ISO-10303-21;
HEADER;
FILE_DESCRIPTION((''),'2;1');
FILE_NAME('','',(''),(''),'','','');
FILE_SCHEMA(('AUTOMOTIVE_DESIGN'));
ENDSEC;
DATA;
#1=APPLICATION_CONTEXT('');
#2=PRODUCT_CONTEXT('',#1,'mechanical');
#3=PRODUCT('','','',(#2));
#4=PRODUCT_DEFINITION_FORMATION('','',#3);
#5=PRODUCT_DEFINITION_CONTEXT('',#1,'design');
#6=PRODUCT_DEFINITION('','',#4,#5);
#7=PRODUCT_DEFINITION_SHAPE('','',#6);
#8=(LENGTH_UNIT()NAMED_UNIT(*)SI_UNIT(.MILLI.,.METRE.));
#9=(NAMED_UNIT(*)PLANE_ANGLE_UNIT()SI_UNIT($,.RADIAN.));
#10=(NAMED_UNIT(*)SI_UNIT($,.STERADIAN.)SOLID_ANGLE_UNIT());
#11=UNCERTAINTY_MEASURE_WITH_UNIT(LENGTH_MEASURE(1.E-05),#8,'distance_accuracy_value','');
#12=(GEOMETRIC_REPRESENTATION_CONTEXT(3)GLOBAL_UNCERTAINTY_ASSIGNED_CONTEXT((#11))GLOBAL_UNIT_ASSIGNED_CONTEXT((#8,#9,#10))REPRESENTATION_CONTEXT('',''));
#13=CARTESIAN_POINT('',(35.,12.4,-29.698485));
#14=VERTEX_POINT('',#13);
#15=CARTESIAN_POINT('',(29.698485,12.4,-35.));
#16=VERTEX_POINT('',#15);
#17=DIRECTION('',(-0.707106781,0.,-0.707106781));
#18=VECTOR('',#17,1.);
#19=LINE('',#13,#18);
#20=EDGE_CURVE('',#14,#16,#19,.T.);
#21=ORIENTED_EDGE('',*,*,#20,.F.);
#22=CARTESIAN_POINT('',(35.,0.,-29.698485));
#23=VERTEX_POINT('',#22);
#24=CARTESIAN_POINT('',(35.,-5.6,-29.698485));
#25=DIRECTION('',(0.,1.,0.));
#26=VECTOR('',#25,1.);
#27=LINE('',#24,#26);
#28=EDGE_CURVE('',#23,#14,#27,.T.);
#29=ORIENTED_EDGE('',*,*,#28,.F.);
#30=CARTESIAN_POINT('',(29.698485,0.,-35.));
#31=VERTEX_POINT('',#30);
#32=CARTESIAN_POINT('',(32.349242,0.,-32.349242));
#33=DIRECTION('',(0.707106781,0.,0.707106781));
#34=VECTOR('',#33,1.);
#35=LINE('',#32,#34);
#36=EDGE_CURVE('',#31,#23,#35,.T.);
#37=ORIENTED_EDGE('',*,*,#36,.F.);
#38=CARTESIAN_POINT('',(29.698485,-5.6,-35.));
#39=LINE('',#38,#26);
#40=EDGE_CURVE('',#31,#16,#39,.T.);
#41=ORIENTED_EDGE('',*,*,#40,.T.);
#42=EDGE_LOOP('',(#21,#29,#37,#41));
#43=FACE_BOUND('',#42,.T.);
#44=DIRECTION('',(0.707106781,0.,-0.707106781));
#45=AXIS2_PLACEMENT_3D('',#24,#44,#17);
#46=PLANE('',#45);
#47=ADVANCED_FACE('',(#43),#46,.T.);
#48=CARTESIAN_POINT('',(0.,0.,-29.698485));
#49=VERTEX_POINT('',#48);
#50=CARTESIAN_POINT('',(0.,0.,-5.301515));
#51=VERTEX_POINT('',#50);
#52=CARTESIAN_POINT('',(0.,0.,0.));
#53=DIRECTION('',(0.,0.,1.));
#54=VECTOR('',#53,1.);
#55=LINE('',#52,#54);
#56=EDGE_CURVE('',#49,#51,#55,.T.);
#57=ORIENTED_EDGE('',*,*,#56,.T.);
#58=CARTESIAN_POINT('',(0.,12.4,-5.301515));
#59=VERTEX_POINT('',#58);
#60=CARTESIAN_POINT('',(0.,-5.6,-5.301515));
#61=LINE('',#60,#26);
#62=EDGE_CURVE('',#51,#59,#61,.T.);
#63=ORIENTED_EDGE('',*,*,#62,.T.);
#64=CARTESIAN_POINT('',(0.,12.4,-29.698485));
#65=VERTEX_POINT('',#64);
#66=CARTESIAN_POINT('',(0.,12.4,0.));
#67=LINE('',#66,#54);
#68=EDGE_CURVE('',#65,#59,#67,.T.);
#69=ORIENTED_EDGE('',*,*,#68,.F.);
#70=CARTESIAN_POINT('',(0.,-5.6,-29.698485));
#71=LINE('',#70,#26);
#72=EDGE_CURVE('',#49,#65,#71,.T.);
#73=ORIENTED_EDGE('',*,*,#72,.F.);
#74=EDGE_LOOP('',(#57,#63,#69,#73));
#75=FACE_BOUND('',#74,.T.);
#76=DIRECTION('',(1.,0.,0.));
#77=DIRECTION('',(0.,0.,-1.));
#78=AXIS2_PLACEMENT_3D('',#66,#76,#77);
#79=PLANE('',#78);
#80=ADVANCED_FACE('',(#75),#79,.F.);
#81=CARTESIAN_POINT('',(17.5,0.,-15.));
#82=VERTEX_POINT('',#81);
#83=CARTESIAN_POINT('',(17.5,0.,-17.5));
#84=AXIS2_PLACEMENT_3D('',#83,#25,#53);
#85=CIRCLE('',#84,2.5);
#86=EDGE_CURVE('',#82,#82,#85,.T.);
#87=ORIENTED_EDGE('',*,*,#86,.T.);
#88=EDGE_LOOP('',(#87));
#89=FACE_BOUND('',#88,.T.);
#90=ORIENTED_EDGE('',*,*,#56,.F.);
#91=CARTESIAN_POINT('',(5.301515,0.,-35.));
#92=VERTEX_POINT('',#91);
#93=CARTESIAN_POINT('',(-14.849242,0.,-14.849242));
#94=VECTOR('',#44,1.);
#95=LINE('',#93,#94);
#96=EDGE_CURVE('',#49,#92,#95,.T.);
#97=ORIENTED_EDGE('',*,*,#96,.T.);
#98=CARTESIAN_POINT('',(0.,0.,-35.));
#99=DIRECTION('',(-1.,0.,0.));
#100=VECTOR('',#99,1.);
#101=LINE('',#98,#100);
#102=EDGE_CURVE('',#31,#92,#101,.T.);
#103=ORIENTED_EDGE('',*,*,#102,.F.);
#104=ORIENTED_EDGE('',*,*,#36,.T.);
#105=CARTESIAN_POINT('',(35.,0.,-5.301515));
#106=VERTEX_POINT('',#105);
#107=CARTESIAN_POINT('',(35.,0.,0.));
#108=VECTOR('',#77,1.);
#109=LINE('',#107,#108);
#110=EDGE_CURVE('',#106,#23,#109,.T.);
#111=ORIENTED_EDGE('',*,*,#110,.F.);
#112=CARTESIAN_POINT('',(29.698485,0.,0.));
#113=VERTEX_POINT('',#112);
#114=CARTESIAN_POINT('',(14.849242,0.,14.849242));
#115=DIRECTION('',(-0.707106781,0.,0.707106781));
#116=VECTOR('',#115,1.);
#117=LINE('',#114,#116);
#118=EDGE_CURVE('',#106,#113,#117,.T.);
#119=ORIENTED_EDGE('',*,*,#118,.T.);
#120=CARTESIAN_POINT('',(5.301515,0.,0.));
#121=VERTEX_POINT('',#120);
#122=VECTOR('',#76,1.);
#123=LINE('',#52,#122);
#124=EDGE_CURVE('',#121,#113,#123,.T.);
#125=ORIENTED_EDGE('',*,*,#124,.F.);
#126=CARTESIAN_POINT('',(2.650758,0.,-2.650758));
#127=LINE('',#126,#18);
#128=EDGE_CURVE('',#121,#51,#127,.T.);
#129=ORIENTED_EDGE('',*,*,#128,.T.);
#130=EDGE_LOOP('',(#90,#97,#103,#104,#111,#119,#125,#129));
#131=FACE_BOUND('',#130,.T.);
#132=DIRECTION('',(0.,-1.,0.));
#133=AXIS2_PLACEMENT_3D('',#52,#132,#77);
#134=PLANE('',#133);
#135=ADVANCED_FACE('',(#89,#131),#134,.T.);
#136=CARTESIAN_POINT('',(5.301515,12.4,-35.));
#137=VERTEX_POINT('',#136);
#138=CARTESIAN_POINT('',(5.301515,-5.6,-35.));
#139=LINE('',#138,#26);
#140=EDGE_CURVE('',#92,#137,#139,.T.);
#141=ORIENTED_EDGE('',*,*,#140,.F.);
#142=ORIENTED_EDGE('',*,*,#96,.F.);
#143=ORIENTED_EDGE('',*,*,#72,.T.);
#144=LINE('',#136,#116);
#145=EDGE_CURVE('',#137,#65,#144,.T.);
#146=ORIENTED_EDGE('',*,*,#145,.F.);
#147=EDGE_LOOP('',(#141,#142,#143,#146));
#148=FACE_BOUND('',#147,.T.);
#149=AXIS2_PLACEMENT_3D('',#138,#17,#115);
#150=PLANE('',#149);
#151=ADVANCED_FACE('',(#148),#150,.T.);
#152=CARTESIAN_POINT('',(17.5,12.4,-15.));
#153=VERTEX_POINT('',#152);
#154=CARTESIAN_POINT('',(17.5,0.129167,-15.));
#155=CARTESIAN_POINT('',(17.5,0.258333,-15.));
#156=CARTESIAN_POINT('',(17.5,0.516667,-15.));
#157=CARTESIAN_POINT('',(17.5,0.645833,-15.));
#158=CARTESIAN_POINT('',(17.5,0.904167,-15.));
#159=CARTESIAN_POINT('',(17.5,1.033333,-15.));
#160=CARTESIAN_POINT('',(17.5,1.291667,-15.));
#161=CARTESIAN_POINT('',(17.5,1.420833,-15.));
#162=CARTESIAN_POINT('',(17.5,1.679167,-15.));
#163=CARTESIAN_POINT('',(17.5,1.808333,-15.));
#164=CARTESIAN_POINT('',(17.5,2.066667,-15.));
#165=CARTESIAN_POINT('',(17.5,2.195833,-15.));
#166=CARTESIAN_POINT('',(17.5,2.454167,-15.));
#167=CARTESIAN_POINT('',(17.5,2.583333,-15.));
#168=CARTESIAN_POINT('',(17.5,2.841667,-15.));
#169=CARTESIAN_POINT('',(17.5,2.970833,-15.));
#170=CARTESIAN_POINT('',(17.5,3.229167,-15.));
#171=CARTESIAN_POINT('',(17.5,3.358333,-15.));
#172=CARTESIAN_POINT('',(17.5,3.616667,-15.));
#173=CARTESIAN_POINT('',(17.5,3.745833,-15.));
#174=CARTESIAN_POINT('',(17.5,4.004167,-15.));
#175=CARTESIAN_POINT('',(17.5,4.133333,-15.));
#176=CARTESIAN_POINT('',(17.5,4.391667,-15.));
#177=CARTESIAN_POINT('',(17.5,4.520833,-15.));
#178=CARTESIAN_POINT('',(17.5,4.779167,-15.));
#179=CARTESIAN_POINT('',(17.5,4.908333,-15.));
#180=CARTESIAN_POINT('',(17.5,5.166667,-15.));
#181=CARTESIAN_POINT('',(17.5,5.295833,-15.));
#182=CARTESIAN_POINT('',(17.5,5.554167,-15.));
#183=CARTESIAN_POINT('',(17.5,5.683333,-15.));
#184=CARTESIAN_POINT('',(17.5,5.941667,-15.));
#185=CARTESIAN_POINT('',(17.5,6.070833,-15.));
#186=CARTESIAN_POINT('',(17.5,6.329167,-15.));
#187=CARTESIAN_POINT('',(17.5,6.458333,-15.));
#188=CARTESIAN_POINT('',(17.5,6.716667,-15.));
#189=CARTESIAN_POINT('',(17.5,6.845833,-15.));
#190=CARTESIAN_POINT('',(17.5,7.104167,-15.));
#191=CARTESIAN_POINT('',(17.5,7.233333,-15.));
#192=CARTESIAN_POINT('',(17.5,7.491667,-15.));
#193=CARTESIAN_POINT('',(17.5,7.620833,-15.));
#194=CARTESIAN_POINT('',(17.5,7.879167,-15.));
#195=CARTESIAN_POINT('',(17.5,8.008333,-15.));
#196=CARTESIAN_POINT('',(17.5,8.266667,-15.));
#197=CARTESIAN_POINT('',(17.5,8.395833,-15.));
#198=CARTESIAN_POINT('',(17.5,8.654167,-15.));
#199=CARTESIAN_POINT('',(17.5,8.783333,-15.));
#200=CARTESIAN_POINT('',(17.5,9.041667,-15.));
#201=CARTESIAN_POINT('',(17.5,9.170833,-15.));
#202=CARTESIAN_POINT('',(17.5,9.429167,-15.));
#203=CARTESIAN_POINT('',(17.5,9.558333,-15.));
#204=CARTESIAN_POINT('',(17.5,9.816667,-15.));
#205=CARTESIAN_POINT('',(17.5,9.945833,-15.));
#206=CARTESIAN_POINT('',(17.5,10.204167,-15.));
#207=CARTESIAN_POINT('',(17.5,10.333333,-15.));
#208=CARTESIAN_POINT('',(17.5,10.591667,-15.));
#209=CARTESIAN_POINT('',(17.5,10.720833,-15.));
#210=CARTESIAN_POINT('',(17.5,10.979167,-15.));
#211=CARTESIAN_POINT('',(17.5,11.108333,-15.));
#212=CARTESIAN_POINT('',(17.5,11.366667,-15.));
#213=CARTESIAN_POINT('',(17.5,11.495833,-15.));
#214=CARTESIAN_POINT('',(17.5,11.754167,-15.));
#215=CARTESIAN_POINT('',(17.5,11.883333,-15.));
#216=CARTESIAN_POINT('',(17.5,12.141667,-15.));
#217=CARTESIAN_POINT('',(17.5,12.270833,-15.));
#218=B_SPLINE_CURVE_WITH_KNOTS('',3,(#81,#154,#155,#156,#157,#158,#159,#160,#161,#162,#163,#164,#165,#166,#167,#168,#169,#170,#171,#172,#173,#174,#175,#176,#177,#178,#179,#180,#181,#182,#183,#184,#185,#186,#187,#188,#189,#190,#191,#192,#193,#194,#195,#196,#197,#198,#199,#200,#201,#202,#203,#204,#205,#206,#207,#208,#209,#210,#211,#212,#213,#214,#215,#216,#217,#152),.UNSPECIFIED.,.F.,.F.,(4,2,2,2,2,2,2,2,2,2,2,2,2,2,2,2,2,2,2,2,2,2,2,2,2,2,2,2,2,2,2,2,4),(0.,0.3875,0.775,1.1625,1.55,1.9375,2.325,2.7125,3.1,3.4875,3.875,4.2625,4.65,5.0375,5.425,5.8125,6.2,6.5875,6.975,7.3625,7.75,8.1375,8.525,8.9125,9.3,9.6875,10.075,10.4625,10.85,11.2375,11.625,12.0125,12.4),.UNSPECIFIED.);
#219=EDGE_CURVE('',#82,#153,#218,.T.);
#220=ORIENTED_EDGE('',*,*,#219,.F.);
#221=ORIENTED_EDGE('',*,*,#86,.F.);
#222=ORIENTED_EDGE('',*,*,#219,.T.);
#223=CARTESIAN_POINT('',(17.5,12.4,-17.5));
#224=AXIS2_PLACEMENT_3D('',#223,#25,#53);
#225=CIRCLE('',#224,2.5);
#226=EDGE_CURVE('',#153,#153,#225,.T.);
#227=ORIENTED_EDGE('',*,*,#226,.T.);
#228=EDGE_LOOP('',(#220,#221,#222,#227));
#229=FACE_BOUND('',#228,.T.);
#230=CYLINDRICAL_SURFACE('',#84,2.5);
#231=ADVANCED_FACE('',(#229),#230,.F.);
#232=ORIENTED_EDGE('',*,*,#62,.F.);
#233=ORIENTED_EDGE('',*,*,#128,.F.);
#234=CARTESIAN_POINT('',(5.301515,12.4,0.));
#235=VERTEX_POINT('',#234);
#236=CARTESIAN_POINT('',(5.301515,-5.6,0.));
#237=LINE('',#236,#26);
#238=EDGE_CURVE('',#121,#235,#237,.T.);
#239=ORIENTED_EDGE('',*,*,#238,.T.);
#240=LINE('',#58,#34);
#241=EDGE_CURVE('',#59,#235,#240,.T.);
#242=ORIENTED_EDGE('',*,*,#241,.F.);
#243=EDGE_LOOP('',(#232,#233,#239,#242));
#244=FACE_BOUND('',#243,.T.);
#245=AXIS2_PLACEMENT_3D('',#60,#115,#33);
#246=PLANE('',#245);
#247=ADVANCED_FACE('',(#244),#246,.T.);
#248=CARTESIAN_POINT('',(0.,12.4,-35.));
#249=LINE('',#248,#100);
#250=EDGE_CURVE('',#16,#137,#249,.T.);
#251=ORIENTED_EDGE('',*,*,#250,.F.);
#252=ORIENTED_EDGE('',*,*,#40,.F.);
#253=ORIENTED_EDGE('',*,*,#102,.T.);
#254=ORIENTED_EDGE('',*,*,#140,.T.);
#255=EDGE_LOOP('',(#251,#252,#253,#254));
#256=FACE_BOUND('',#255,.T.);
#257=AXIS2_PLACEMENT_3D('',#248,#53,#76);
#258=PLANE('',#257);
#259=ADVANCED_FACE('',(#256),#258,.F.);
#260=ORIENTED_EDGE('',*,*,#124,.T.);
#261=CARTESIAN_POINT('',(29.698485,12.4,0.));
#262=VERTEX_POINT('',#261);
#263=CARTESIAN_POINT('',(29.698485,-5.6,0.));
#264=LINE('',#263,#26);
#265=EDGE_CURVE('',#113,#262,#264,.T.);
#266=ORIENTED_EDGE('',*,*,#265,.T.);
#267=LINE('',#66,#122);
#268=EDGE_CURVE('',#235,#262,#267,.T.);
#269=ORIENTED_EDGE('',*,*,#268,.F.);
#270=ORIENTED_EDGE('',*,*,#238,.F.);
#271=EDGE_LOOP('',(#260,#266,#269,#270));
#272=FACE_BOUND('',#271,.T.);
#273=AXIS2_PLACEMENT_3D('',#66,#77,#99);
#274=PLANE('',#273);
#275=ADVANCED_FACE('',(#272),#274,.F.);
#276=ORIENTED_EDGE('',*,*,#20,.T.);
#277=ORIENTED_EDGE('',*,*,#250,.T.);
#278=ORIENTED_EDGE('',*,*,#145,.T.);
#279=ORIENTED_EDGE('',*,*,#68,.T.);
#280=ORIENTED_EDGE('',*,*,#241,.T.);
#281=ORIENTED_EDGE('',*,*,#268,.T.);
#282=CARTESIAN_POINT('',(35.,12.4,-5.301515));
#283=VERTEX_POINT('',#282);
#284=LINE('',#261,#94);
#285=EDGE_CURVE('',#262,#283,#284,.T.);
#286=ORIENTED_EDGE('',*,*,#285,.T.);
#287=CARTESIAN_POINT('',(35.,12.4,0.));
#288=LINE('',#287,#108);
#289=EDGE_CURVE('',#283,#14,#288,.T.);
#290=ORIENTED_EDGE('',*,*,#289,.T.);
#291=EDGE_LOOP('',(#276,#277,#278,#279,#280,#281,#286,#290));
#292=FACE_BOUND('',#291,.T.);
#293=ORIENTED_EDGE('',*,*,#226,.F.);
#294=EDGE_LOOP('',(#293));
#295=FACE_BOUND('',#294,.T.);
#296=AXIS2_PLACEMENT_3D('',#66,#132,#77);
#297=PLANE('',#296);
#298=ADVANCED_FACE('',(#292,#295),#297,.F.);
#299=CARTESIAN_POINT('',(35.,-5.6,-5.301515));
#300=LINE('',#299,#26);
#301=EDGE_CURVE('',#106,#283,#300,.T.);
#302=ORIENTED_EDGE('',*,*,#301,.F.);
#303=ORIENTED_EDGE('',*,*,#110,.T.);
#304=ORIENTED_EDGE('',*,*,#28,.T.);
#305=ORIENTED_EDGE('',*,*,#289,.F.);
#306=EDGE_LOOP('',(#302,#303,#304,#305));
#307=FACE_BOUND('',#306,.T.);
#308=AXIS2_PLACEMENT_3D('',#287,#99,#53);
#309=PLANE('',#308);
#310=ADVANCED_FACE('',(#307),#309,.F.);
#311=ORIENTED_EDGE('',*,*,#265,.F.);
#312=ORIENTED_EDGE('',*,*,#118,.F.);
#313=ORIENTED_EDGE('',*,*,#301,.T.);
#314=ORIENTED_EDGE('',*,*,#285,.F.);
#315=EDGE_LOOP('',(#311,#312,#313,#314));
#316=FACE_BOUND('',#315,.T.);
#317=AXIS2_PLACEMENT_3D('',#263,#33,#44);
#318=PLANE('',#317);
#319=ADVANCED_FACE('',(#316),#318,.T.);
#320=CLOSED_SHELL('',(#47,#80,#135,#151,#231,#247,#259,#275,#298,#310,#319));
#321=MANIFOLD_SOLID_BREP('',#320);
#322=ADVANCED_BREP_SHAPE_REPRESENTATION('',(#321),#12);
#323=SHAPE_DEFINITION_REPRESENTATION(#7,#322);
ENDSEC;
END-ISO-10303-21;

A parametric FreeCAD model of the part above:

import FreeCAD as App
import Part
import Sketcher
Q = App.Units.Quantity

doc = App.newDocument("Part")
body = doc.addObject("PartDesign::Body", "Body")

# Sketch on XZ plane
sketch1 = body.newObject("Sketcher::SketchObject", "Sketch")
sketch1.AttachmentSupport = (doc.getObject("XZ_Plane"), [""])
sketch1.MapMode = "FlatFace"
sketch1.addGeometry([
    Part.LineSegment(App.Vector(0, -35, 0), App.Vector(0, 0, 0)),
    Part.LineSegment(App.Vector(0, 0, 0), App.Vector(35, 0, 0)),
    Part.LineSegment(App.Vector(35, 0, 0), App.Vector(35, -35, 0)),
    Part.LineSegment(App.Vector(35, -35, 0), App.Vector(0, -35, 0)),
], False)
sketch1.addConstraint([
    Sketcher.Constraint("Coincident", 0, 2, 1, 1),
    Sketcher.Constraint("Coincident", 1, 2, 2, 1),
    Sketcher.Constraint("Coincident", 2, 2, 3, 1),
    Sketcher.Constraint("Coincident", 3, 2, 0, 1),
    Sketcher.Constraint("Vertical", 0),
    Sketcher.Constraint("Horizontal", 1),
    Sketcher.Constraint("Vertical", 2),
    Sketcher.Constraint("Horizontal", 3),
    Sketcher.Constraint("Coincident", 0, 2, -1, 1),
    Sketcher.Constraint("Equal", 3, 0),
    Sketcher.Constraint("DistanceX", 1, 1, 1, 2, Q("35 mm")),
])
pad1 = body.newObject("PartDesign::Pad", "Pad")
pad1.Profile = sketch1
pad1.Length = 12.4
pad1.Reversed = True

# Sketch on XZ plane
sketch2 = body.newObject("Sketcher::SketchObject", "Sketch001")
sketch2.AttachmentSupport = (doc.getObject("XZ_Plane"), [""])
sketch2.MapMode = "FlatFace"
sketch2.AttachmentOffset = App.Placement(App.Vector(0, 0, -12.4), App.Rotation())
sketch2.addGeometry([
    Part.LineSegment(App.Vector(-6.103, -41.103, 0), App.Vector(-6.103, 6.103, 0)),  # 0
    Part.LineSegment(App.Vector(-6.103, 6.103, 0), App.Vector(41.103, 6.103, 0)),  # 1
    Part.LineSegment(App.Vector(41.103, 6.103, 0), App.Vector(41.103, -41.103, 0)),  # 2
    Part.LineSegment(App.Vector(41.103, -41.103, 0), App.Vector(-6.103, -41.103, 0)),  # 3
    Part.LineSegment(App.Vector(0, -29.698485, 0), App.Vector(5.301515, -35, 0)),  # 4
    Part.LineSegment(App.Vector(5.301515, -35, 0), App.Vector(29.698485, -35, 0)),  # 5
    Part.LineSegment(App.Vector(29.698485, -35, 0), App.Vector(35, -29.698485, 0)),  # 6
    Part.LineSegment(App.Vector(35, -29.698485, 0), App.Vector(35, -5.301515, 0)),  # 7
    Part.LineSegment(App.Vector(35, -5.301515, 0), App.Vector(29.698485, 0, 0)),  # 8
    Part.LineSegment(App.Vector(29.698485, 0, 0), App.Vector(5.301515, 0, 0)),  # 9
    Part.LineSegment(App.Vector(5.301515, 0, 0), App.Vector(0, -5.301515, 0)),  # 10
    Part.LineSegment(App.Vector(0, -5.301515, 0), App.Vector(0, -29.698485, 0)),  # 11
], False)
sketch2.addConstraint([
    Sketcher.Constraint("Coincident", 0, 2, 1, 1),
    Sketcher.Constraint("Coincident", 1, 2, 2, 1),
    Sketcher.Constraint("Coincident", 2, 2, 3, 1),
    Sketcher.Constraint("Coincident", 3, 2, 0, 1),
    Sketcher.Constraint("Coincident", 4, 2, 5, 1),
    Sketcher.Constraint("Coincident", 5, 2, 6, 1),
    Sketcher.Constraint("Coincident", 6, 2, 7, 1),
    Sketcher.Constraint("Coincident", 7, 2, 8, 1),
    Sketcher.Constraint("Coincident", 8, 2, 9, 1),
    Sketcher.Constraint("Coincident", 9, 2, 10, 1),
    Sketcher.Constraint("Coincident", 10, 2, 11, 1),
    Sketcher.Constraint("Coincident", 11, 2, 4, 1),
    Sketcher.Constraint("Vertical", 0),
    Sketcher.Constraint("Horizontal", 1),
    Sketcher.Constraint("Vertical", 2),
    Sketcher.Constraint("Horizontal", 3),
    Sketcher.Constraint("Horizontal", 5),
    Sketcher.Constraint("Vertical", 7),
    Sketcher.Constraint("Horizontal", 9),
    Sketcher.Constraint("Vertical", 11),
    Sketcher.Constraint("PointOnObject", 8, 2, -1),
    Sketcher.Constraint("PointOnObject", 10, 2, -2),
    Sketcher.Constraint("Perpendicular", 4, 6),
    Sketcher.Constraint("Perpendicular", 6, 8),
    Sketcher.Constraint("Perpendicular", 8, 10),
    Sketcher.Constraint("Horizontal", 7, 2, 10, 2),
    Sketcher.Constraint("Horizontal", 6, 2, 11, 2),
    Sketcher.Constraint("Vertical", 5, 2, 8, 2),
    Sketcher.Constraint("Vertical", 4, 2, 9, 2),
    Sketcher.Constraint("Equal", 3, 0),
    Sketcher.Constraint("Equal", 9, 7),
    Sketcher.Constraint("DistanceY", 4, 2, -1, 1, Q("35 mm")),
    Sketcher.Constraint("DistanceX", 1, 1, 1, 2, Q("47.206 mm")),
    Sketcher.Constraint("DistanceX", 0, 2, -1, 1, Q("6.103 mm")),
    Sketcher.Constraint("DistanceY", -1, 1, 0, 2, Q("6.103 mm")),
    Sketcher.Constraint("DistanceX", 5, 1, 5, 2, Q("24.39697 mm")),
])
pocket1 = body.newObject("PartDesign::Pocket", "Pocket")
pocket1.Profile = sketch2
pocket1.Length = 18
pocket1.Reversed = True

# Sketch on XZ plane
sketch3 = body.newObject("Sketcher::SketchObject", "Sketch002")
sketch3.AttachmentSupport = (doc.getObject("XZ_Plane"), [""])
sketch3.MapMode = "FlatFace"
sketch3.AttachmentOffset = App.Placement(App.Vector(0, 0, -12.4), App.Rotation())
sketch3.addGeometry(Part.Circle(App.Vector(17.5, -17.5, 0), App.Vector(0, 0, 1), 2.5), False)
sketch3.addConstraint([
    Sketcher.Constraint("Diameter", 0, Q("5 mm")),
    Sketcher.Constraint("DistanceX", -1, 1, 0, 3, Q("17.5 mm")),
    Sketcher.Constraint("DistanceY", 0, 3, -1, 1, Q("17.5 mm")),
])
pocket2 = body.newObject("PartDesign::Pocket", "Pocket001")
pocket2.Profile = sketch3
pocket2.Type = "ThroughAll"
pocket2.Reversed = True

doc.recompute()
